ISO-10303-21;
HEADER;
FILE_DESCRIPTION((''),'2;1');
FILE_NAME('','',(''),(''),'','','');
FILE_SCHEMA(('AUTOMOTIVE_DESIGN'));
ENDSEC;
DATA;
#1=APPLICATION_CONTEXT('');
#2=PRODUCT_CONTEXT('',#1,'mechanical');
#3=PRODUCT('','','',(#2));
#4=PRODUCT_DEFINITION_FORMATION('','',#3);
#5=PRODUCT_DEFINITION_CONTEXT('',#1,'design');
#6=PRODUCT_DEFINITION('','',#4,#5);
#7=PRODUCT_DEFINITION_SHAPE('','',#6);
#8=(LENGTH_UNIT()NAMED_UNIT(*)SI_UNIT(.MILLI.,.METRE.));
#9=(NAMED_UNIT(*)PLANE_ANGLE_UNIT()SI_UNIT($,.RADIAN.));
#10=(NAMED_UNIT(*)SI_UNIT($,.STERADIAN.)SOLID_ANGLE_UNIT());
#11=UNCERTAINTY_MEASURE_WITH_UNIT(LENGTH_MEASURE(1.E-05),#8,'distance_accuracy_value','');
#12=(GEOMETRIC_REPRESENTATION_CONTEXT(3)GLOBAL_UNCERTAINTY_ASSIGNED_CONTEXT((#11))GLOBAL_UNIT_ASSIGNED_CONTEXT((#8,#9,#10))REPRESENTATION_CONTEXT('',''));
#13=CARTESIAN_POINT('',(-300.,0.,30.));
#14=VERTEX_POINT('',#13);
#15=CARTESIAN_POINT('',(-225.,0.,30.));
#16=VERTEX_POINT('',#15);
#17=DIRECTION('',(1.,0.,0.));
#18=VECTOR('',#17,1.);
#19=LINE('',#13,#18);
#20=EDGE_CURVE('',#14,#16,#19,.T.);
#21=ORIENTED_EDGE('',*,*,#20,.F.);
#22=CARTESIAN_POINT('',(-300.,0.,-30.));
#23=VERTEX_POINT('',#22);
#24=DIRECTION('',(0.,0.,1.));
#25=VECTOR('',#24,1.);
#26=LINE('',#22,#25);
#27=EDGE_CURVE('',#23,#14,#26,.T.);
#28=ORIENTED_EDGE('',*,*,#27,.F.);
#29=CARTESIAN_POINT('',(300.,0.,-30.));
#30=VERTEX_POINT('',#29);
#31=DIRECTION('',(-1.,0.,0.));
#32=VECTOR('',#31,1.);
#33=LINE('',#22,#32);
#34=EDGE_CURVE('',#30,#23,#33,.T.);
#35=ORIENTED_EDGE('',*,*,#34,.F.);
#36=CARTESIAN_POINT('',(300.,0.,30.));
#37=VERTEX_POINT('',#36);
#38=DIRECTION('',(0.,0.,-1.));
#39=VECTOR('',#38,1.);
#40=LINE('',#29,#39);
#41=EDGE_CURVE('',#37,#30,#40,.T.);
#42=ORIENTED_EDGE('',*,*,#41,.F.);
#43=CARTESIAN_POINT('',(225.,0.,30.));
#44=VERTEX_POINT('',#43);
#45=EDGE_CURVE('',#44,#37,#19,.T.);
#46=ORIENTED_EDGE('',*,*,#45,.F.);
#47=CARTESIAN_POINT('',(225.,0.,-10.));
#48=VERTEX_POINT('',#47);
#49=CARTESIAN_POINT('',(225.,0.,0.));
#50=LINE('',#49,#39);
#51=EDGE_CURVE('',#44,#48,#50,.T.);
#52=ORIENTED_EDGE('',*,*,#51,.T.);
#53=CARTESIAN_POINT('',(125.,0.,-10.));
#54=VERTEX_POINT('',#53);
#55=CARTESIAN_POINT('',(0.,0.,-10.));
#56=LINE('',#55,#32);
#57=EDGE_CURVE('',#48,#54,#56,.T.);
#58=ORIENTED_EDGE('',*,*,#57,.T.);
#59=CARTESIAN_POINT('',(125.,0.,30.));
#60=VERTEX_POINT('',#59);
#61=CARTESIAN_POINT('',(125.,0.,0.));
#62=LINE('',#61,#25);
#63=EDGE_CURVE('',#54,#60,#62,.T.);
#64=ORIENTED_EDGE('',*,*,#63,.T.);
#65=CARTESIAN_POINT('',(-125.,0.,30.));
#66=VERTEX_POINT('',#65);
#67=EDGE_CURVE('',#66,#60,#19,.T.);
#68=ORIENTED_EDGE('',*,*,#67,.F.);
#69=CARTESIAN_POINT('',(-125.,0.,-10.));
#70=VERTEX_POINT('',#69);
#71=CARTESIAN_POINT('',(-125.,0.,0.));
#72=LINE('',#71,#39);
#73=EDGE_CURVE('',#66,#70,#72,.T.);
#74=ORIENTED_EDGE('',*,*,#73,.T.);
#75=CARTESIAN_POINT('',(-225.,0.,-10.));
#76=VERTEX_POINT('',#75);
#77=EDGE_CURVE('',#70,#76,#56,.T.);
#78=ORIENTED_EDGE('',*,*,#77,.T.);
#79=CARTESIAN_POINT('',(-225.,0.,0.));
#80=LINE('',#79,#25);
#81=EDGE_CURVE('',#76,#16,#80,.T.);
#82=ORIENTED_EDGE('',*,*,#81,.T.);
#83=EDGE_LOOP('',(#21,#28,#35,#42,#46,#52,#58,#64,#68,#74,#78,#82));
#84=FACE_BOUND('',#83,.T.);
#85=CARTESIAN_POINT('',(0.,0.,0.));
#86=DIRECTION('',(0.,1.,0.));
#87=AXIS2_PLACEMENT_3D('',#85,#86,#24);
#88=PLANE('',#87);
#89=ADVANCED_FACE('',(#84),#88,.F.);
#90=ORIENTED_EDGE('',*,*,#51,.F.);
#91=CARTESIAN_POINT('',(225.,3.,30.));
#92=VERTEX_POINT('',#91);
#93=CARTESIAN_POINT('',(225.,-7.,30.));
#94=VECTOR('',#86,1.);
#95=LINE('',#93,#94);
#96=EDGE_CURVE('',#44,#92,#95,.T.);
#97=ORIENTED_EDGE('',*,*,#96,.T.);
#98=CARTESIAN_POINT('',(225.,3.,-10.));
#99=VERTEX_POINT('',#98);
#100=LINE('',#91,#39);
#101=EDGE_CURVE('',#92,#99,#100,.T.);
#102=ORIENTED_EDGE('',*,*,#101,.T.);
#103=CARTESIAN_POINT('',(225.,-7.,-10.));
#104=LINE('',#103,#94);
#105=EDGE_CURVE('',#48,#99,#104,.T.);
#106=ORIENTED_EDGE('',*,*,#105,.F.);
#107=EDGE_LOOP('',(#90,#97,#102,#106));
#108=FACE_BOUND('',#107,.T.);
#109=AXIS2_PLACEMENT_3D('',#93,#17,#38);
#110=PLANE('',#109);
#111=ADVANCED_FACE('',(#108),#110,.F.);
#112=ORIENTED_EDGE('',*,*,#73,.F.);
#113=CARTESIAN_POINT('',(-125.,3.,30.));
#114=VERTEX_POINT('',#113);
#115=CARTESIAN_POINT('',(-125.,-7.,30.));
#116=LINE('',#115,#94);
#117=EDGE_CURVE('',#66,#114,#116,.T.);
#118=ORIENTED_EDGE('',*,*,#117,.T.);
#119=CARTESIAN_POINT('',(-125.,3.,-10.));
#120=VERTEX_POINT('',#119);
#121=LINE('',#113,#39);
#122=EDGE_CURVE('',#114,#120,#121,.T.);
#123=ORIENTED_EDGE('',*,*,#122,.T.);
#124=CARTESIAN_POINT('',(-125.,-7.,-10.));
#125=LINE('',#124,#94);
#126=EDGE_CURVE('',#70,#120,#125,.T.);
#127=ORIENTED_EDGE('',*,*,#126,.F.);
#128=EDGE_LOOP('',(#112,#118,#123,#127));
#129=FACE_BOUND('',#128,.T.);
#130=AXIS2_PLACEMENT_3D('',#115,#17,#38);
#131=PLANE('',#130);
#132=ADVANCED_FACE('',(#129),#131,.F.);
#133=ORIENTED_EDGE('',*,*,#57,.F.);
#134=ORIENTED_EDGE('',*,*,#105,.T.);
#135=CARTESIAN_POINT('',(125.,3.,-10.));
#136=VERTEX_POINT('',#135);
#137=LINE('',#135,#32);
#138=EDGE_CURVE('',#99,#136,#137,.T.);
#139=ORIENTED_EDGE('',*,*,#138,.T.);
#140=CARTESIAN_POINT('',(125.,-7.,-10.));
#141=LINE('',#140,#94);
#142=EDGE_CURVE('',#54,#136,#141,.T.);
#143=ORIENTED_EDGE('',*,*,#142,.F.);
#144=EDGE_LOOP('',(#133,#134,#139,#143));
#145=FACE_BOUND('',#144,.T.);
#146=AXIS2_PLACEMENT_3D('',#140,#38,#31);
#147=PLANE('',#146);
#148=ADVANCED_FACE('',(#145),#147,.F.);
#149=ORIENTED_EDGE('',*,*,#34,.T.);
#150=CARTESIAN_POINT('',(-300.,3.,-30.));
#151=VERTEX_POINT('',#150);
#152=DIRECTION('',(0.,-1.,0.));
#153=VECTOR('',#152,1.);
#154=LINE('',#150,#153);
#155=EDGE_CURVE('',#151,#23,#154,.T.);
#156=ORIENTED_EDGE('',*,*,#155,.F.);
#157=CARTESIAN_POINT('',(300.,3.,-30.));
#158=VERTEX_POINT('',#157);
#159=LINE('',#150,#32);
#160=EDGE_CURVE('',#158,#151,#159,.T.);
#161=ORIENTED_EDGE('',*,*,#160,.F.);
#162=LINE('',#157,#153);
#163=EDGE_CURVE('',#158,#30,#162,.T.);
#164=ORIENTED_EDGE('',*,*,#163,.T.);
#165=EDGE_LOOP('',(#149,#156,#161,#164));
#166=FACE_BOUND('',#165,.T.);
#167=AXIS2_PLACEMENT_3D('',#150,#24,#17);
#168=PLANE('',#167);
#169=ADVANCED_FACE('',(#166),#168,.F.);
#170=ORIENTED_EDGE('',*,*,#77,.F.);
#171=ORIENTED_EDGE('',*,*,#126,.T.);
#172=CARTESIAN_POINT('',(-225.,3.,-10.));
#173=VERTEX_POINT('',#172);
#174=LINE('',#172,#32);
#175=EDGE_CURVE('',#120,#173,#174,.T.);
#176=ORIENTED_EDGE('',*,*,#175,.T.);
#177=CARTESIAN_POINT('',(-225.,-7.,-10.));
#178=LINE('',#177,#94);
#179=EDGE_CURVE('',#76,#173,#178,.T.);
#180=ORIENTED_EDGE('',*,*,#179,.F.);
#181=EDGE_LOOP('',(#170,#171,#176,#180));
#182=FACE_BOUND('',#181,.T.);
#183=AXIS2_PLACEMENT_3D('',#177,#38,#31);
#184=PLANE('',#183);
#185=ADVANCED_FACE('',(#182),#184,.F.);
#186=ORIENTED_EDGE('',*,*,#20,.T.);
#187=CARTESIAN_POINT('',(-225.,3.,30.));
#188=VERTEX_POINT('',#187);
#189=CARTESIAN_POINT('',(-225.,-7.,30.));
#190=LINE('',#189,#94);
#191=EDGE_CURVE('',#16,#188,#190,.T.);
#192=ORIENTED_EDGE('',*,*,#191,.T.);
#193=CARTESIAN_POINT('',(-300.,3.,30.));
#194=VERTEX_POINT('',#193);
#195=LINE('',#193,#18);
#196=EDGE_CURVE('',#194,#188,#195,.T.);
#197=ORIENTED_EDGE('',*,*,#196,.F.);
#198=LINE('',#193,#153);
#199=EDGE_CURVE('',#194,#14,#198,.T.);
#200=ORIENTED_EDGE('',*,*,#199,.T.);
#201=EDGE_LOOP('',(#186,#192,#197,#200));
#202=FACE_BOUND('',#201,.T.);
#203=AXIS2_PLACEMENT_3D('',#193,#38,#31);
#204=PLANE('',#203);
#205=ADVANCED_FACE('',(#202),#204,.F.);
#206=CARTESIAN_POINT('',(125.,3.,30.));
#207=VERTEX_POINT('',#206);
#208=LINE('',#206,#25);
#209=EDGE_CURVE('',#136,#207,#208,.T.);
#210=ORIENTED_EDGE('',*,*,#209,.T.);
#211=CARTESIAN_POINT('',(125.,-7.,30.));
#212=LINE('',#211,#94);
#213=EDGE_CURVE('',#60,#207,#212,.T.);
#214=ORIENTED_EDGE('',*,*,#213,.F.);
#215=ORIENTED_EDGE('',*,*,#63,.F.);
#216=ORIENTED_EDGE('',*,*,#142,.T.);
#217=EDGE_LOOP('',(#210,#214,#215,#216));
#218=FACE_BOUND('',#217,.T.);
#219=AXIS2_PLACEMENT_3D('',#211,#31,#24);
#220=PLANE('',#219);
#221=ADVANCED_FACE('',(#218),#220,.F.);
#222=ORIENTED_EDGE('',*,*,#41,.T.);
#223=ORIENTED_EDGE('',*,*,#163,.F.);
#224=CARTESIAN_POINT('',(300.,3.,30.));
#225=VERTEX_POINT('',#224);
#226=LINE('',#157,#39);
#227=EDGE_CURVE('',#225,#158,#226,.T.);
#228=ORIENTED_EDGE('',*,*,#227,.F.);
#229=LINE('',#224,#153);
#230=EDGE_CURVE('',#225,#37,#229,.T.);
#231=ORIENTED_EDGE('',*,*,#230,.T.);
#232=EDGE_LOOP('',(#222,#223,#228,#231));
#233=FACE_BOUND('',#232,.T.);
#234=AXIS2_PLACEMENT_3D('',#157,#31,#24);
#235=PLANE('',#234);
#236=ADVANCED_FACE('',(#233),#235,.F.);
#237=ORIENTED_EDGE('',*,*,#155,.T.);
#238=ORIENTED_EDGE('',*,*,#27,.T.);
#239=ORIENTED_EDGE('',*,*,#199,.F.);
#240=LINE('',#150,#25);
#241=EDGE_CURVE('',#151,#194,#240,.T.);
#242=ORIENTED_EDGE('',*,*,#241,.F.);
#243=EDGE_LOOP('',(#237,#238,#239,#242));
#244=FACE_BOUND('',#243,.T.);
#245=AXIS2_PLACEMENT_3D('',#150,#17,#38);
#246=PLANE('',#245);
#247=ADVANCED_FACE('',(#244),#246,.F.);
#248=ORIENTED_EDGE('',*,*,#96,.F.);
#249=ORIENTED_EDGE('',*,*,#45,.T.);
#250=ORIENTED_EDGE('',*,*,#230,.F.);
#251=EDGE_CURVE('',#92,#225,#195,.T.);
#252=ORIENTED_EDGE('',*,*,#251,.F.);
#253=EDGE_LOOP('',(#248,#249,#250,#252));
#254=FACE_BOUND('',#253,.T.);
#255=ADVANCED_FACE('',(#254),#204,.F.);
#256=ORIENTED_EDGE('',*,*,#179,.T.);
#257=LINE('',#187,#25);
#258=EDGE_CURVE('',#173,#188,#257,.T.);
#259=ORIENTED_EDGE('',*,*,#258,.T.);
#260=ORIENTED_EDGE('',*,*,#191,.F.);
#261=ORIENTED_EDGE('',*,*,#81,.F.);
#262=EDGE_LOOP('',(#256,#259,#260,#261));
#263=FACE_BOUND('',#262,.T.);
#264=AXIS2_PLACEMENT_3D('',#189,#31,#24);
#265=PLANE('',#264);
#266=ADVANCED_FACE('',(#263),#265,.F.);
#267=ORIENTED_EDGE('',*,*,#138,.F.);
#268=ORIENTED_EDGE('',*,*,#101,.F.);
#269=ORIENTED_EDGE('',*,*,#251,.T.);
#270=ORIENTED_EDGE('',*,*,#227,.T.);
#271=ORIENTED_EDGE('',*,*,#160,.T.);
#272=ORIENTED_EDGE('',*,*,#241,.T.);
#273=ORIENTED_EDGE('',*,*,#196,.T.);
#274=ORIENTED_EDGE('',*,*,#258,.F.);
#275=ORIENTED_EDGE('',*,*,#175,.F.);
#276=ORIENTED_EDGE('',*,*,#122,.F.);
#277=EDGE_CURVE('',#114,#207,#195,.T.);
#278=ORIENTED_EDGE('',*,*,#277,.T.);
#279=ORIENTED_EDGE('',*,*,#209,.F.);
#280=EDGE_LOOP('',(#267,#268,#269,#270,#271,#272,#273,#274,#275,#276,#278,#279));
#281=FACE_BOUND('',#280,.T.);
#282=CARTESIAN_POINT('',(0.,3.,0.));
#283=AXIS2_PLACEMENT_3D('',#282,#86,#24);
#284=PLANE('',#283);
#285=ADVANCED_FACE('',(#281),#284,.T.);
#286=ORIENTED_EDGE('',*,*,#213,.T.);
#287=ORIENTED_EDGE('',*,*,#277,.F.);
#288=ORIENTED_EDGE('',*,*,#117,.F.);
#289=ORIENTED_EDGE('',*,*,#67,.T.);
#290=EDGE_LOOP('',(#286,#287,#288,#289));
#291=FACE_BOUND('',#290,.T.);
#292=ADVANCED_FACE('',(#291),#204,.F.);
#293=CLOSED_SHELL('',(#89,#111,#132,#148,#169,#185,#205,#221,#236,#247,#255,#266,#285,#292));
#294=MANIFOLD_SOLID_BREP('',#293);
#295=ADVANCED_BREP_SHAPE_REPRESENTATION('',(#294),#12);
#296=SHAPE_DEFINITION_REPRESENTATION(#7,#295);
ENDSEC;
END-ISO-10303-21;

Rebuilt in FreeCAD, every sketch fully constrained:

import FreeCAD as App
import Part
import Sketcher

V = App.Vector


def add_polygon(sketch, points):
    """Adds a closed chain of lines whose ends are joined by coincident constraints."""
    first, n = sketch.GeometryCount, len(points)
    for a, b in zip(points, points[1:] + points[:1]):
        sketch.addGeometry(Part.LineSegment(App.Vector(*a, 0), App.Vector(*b, 0)), False)
    for i in range(n):
        sketch.addConstraint(Sketcher.Constraint("Coincident", first + i, 2, first + (i + 1) % n, 1))

doc = App.newDocument("Part")
body = doc.addObject("PartDesign::Body", "Body")

sketch1 = body.newObject("Sketcher::SketchObject", "Sketch")
sketch1.AttachmentSupport = (doc.getObject("XZ_Plane"), [""])
sketch1.MapMode = "FlatFace"
add_polygon(sketch1, [(-300, -30), (-300, 30), (300, 30), (300, -30)])
sketch1.addConstraint(Sketcher.Constraint("Vertical", 0))
sketch1.addConstraint(Sketcher.Constraint("Horizontal", 1))
sketch1.addConstraint(Sketcher.Constraint("Vertical", 2))
sketch1.addConstraint(Sketcher.Constraint("Horizontal", 3))
sketch1.addConstraint(Sketcher.Constraint("Symmetric", 0, 2, 2, 2, -1, 1))
sketch1.addConstraint(Sketcher.Constraint("DistanceX", 1, 1, 1, 2, 600.0))
sketch1.addConstraint(Sketcher.Constraint("DistanceY", 0, 1, 0, 2, 60.0))
pad1 = body.newObject("PartDesign::Pad", "Pad")
pad1.Profile = sketch1
pad1.Length = 3
pad1.Reversed = True

sketch2 = body.newObject("Sketcher::SketchObject", "Sketch001")
sketch2.AttachmentSupport = (doc.getObject("XZ_Plane"), [""])
sketch2.MapMode = "FlatFace"
sketch2.AttachmentOffset = App.Placement(V(0, 0, -3), App.Rotation())
add_polygon(sketch2, [(-225, -10), (-225, 30), (-125, 30), (-125, -10)])
add_polygon(sketch2, [(125, -10), (125, 30), (225, 30), (225, -10)])
sketch2.addConstraint(Sketcher.Constraint("Vertical", 0))
sketch2.addConstraint(Sketcher.Constraint("Horizontal", 1))
sketch2.addConstraint(Sketcher.Constraint("Vertical", 2))
sketch2.addConstraint(Sketcher.Constraint("Horizontal", 3))
sketch2.addConstraint(Sketcher.Constraint("Vertical", 4))
sketch2.addConstraint(Sketcher.Constraint("Horizontal", 5))
sketch2.addConstraint(Sketcher.Constraint("Vertical", 6))
sketch2.addConstraint(Sketcher.Constraint("Horizontal", 7))
sketch2.addConstraint(Sketcher.Constraint("Symmetric", 1, 2, 4, 2, -2))
sketch2.addConstraint(Sketcher.Constraint("Symmetric", 3, 2, 6, 2, -2))
sketch2.addConstraint(Sketcher.Constraint("DistanceX", 1, 1, 1, 2, 100.0))
sketch2.addConstraint(Sketcher.Constraint("DistanceY", 0, 1, 0, 2, 40.0))
sketch2.addConstraint(Sketcher.Constraint("DistanceX", 0, 2, -1, 1, 225.0))
sketch2.addConstraint(Sketcher.Constraint("DistanceY", -1, 1, 0, 2, 30.0))
pocket1 = body.newObject("PartDesign::Pocket", "Pocket")
pocket1.Profile = sketch2
pocket1.Length = 10
pocket1.Reversed = True

doc.recompute()
